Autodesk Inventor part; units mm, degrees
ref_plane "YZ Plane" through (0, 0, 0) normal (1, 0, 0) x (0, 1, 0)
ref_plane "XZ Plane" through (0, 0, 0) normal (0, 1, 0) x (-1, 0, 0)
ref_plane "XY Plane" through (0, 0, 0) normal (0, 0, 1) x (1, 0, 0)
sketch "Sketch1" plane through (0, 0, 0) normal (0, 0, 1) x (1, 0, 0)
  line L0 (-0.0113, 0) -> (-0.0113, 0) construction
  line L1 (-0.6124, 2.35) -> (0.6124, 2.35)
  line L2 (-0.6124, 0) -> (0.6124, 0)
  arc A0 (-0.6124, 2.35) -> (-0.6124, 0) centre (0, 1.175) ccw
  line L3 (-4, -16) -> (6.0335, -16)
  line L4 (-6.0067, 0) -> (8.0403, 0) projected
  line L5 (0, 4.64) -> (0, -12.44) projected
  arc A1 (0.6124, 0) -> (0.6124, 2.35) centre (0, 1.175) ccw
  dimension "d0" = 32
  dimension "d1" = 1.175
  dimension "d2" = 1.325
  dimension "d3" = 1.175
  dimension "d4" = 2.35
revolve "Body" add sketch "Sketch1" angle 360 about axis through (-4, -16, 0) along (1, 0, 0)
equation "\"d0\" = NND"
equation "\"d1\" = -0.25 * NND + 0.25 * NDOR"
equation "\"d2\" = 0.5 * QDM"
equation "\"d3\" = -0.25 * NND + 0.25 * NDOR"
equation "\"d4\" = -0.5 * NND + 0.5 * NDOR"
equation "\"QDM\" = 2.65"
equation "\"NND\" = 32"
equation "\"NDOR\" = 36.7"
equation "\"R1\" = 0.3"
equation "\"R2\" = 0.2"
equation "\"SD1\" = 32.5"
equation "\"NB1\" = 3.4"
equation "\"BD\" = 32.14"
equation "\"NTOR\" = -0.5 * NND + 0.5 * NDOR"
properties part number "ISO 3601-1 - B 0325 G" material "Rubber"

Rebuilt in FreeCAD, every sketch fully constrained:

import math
import FreeCAD as App
import Part
import Sketcher
from FreeCAD import Vector
Q = App.Units.Quantity

doc = App.newDocument("Part")
params = doc.addObject("Spreadsheet::Sheet", "Params")
for row, (alias, value) in enumerate([
    ("revolution_angle", "360 deg"),
], start=1):
    params.set(f"A{row}", alias)
    params.set(f"B{row}", "=" + value)
    params.setAlias(f"B{row}", alias)

body = doc.addObject("PartDesign::Body", "Body")

# Sketch on XY plane
sketch1 = body.newObject("Sketcher::SketchObject", "Sketch")
sketch1.AttachmentSupport = (doc.getObject("XY_Plane"), [""])
sketch1.MapMode = "FlatFace"
sketch1.addGeometry(Part.ArcOfCircle(Part.Circle(Vector(0, 1.175, 0), Vector(0, 0, 1), 1.325013), math.radians(117.528142), math.radians(242.471858)), False)
sketch1.addGeometry(Part.LineSegment(Vector(-0.6124, 0, 0), Vector(0.6124, 0, 0)), False)
sketch1.addGeometry(Part.ArcOfCircle(Part.Circle(Vector(0, 1.175, 0), Vector(0, 0, 1), 1.325013), math.radians(-62.471858), math.radians(62.471858)), False)
sketch1.addGeometry(Part.LineSegment(Vector(0.6124, 2.35, 0), Vector(-0.6124, 2.35, 0)), False)
sketch1.addGeometry(Part.LineSegment(Vector(-0.6124, -16, 0), Vector(0.6124, -16, 0)), True)  # axis
sketch1.addConstraint(Sketcher.Constraint("Coincident", 0, 2, 1, 1))
sketch1.addConstraint(Sketcher.Constraint("Coincident", 1, 2, 2, 1))
sketch1.addConstraint(Sketcher.Constraint("Coincident", 2, 2, 3, 1))
sketch1.addConstraint(Sketcher.Constraint("Coincident", 3, 2, 0, 1))
sketch1.addConstraint(Sketcher.Constraint("Horizontal", 1))
sketch1.addConstraint(Sketcher.Constraint("Horizontal", 3))
sketch1.addConstraint(Sketcher.Constraint("Horizontal", 4))
sketch1.addConstraint(Sketcher.Constraint("Coincident", 2, 3, 0, 3))
sketch1.addConstraint(Sketcher.Constraint("Equal", 0, 2))
sketch1.addConstraint(Sketcher.Constraint("Symmetric", 0, 2, 1, 2, -1, 1))
sketch1.addConstraint(Sketcher.Constraint("Vertical", 1, 2, 2, 2))
sketch1.addConstraint(Sketcher.Constraint("Vertical", 3, 2, 4, 1))
sketch1.addConstraint(Sketcher.Constraint("Vertical", 2, 2, 4, 2))
sketch1.addConstraint(Sketcher.Constraint("Radius", 0, Q("1.325 mm")))
sketch1.addConstraint(Sketcher.Constraint("DistanceY", -1, 1, 2, 2, Q("2.35 mm")))
sketch1.addConstraint(Sketcher.Constraint("DistanceY", 4, 1, -1, 1, Q("16 mm")))
revolution = body.newObject("PartDesign::Revolution", "Revolution")
revolution.Profile = sketch1
revolution.ReferenceAxis = (sketch1, ["Axis0"])
revolution.setExpression("Angle", "Params.revolution_angle")

doc.recompute()
